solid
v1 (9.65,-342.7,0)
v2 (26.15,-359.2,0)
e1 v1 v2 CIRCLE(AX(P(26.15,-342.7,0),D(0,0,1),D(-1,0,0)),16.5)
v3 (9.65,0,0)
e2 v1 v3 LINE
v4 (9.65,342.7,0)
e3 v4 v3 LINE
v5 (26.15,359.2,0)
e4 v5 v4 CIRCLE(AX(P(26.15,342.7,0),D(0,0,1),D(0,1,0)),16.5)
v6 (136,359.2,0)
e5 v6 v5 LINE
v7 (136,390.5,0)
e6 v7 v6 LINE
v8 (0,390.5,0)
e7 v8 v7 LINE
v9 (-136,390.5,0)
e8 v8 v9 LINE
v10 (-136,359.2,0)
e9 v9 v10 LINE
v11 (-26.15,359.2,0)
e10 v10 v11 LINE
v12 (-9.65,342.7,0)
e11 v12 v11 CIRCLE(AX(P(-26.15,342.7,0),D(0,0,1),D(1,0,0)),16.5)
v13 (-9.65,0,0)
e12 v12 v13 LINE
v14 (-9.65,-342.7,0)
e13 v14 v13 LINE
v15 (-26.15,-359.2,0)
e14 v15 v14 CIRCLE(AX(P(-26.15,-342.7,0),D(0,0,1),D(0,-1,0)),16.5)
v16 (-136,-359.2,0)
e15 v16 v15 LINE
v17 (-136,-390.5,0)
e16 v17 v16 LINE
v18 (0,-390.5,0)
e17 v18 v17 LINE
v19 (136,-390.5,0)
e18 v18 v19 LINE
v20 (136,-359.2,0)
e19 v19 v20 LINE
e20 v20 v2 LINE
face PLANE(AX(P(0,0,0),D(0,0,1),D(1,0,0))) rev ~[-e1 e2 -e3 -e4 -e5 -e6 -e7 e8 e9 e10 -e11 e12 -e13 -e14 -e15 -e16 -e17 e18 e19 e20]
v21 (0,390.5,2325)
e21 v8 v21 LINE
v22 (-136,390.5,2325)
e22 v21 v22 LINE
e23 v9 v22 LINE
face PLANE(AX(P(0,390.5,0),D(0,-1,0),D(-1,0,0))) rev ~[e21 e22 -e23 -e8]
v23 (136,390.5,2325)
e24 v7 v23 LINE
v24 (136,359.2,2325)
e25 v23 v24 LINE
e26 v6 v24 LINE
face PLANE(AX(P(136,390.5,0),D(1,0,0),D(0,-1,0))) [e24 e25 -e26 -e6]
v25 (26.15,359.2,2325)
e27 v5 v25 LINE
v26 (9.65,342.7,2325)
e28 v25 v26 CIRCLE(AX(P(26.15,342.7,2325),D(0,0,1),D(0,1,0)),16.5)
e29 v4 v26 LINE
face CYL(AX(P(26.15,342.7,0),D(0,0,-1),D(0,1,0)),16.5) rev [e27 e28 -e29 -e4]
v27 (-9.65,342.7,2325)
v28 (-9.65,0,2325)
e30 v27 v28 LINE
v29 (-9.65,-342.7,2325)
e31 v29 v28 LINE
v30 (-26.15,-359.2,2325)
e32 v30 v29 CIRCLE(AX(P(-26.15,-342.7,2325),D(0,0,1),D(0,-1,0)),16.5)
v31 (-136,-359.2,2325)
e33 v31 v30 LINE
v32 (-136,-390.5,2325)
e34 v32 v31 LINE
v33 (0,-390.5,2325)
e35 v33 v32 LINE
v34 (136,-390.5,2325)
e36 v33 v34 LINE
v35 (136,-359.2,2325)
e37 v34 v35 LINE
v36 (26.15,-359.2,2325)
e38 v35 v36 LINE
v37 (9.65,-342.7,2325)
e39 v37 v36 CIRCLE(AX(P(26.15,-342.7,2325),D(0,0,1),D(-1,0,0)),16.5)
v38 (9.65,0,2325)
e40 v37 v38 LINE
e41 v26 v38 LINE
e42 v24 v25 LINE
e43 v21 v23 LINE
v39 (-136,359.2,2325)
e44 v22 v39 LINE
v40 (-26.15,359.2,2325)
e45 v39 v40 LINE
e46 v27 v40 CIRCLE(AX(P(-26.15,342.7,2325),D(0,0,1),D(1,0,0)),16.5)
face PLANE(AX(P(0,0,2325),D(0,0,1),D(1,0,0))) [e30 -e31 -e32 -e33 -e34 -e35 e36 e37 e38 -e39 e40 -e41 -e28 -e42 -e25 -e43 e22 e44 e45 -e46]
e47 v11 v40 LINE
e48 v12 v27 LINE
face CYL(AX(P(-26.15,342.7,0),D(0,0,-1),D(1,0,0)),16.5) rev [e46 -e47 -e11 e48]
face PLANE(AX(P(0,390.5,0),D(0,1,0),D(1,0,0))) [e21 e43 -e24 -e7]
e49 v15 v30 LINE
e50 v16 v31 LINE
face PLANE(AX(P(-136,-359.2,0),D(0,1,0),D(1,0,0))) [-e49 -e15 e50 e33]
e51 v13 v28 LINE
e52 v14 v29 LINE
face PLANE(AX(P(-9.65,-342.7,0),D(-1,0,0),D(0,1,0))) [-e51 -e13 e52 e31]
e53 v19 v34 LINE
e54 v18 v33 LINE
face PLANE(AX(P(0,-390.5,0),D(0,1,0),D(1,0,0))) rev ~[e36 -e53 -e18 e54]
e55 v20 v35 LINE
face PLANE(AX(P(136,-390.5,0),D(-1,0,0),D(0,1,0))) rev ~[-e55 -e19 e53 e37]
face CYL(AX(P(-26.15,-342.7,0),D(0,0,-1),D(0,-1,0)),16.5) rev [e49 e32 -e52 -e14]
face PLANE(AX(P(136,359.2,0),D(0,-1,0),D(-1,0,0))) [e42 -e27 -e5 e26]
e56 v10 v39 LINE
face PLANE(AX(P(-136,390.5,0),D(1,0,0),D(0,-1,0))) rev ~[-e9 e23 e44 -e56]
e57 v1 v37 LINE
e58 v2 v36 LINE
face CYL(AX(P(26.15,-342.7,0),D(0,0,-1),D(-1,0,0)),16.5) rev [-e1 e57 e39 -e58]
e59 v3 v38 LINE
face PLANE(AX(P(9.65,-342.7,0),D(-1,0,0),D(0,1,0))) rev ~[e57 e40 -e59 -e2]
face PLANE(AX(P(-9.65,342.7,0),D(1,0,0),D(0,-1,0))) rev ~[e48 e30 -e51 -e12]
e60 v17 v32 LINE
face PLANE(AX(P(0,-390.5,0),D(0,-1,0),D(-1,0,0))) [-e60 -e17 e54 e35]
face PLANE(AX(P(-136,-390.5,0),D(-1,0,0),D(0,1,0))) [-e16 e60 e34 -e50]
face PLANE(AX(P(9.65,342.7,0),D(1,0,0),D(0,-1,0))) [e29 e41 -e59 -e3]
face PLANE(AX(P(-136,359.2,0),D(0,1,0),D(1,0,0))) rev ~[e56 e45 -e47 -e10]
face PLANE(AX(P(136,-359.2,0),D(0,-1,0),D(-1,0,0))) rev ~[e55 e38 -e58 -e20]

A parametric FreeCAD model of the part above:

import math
import FreeCAD as App
import Part
import Sketcher
Q = App.Units.Quantity

doc = App.newDocument("Part")
params = doc.addObject("Spreadsheet::Sheet", "Params")
for row, (alias, value) in enumerate([
    ("sketch1_radius", "16.5 mm"),
    ("sketch1_height", "31.3 mm"),
    ("pad1_length", "2325 mm"),
], start=1):
    params.set(f"A{row}", alias)
    params.set(f"B{row}", "=" + value)
    params.setAlias(f"B{row}", alias)

body = doc.addObject("PartDesign::Body", "Body")

sketch1 = doc.addObject("Sketcher::SketchObject", "Sketch")
body.addObject(sketch1)
sketch1.AttachmentSupport = (doc.XY_Plane, [""])
sketch1.MapMode = "FlatFace"
sketch1.addGeometry(Part.LineSegment(App.Vector(-136, -359, 0), App.Vector(-136, -390, 0)), False)
sketch1.addGeometry(Part.LineSegment(App.Vector(-136, -390, 0), App.Vector(136, -390, 0)), False)
sketch1.addGeometry(Part.LineSegment(App.Vector(136, -390, 0), App.Vector(136, -359, 0)), False)
sketch1.addGeometry(Part.LineSegment(App.Vector(136, -359, 0), App.Vector(26, -359, 0)), False)
sketch1.addGeometry(Part.ArcOfCircle(Part.Circle(App.Vector(26, -343, 0), App.Vector(0, 0, 1), 16), math.radians(180), math.radians(270)), False)
sketch1.addGeometry(Part.LineSegment(App.Vector(10, -343, 0), App.Vector(10, 343, 0)), False)
sketch1.addGeometry(Part.ArcOfCircle(Part.Circle(App.Vector(26, 343, 0), App.Vector(0, 0, 1), 16), math.radians(90), math.radians(180)), False)
sketch1.addGeometry(Part.LineSegment(App.Vector(26, 359, 0), App.Vector(136, 359, 0)), False)
sketch1.addGeometry(Part.LineSegment(App.Vector(136, 359, 0), App.Vector(136, 390, 0)), False)
sketch1.addGeometry(Part.LineSegment(App.Vector(136, 390, 0), App.Vector(-136, 390, 0)), False)
sketch1.addGeometry(Part.LineSegment(App.Vector(-136, 390, 0), App.Vector(-136, 359, 0)), False)
sketch1.addGeometry(Part.LineSegment(App.Vector(-136, 359, 0), App.Vector(-26, 359, 0)), False)
sketch1.addGeometry(Part.ArcOfCircle(Part.Circle(App.Vector(-26, 343, 0), App.Vector(0, 0, 1), 16), math.radians(0), math.radians(90)), False)
sketch1.addGeometry(Part.LineSegment(App.Vector(-10, 343, 0), App.Vector(-10, -343, 0)), False)
sketch1.addGeometry(Part.ArcOfCircle(Part.Circle(App.Vector(-26, -343, 0), App.Vector(0, 0, 1), 16), math.radians(-90), math.radians(0)), False)
sketch1.addGeometry(Part.LineSegment(App.Vector(-26, -359, 0), App.Vector(-136, -359, 0)), False)
sketch1.addConstraint(Sketcher.Constraint("Coincident", 0, 2, 1, 1))
sketch1.addConstraint(Sketcher.Constraint("Coincident", 1, 2, 2, 1))
sketch1.addConstraint(Sketcher.Constraint("Coincident", 2, 2, 3, 1))
sketch1.addConstraint(Sketcher.Constraint("Tangent", 3, 2, 4, 2))
sketch1.addConstraint(Sketcher.Constraint("Tangent", 4, 1, 5, 1))
sketch1.addConstraint(Sketcher.Constraint("Tangent", 5, 2, 6, 2))
sketch1.addConstraint(Sketcher.Constraint("Tangent", 6, 1, 7, 1))
sketch1.addConstraint(Sketcher.Constraint("Coincident", 7, 2, 8, 1))
sketch1.addConstraint(Sketcher.Constraint("Coincident", 8, 2, 9, 1))
sketch1.addConstraint(Sketcher.Constraint("Coincident", 9, 2, 10, 1))
sketch1.addConstraint(Sketcher.Constraint("Coincident", 10, 2, 11, 1))
sketch1.addConstraint(Sketcher.Constraint("Tangent", 11, 2, 12, 2))
sketch1.addConstraint(Sketcher.Constraint("Tangent", 12, 1, 13, 1))
sketch1.addConstraint(Sketcher.Constraint("Tangent", 13, 2, 14, 2))
sketch1.addConstraint(Sketcher.Constraint("Tangent", 14, 1, 15, 1))
sketch1.addConstraint(Sketcher.Constraint("Coincident", 15, 2, 0, 1))
sketch1.addConstraint(Sketcher.Constraint("Vertical", 0))
sketch1.addConstraint(Sketcher.Constraint("Horizontal", 1))
sketch1.addConstraint(Sketcher.Constraint("Vertical", 2))
sketch1.addConstraint(Sketcher.Constraint("Horizontal", 3))
sketch1.addConstraint(Sketcher.Constraint("Vertical", 5))
sketch1.addConstraint(Sketcher.Constraint("Horizontal", 7))
sketch1.addConstraint(Sketcher.Constraint("Vertical", 8))
sketch1.addConstraint(Sketcher.Constraint("Horizontal", 9))
sketch1.addConstraint(Sketcher.Constraint("Vertical", 10))
sketch1.addConstraint(Sketcher.Constraint("Horizontal", 11))
sketch1.addConstraint(Sketcher.Constraint("Vertical", 13))
sketch1.addConstraint(Sketcher.Constraint("Horizontal", 15))
sketch1.addConstraint(Sketcher.Constraint("Equal", 4, 6))
sketch1.addConstraint(Sketcher.Constraint("Equal", 6, 12))
sketch1.addConstraint(Sketcher.Constraint("Equal", 12, 14))
sketch1.addConstraint(Sketcher.Constraint("Symmetric", 4, 3, 12, 3, -1, 1))
sketch1.addConstraint(Sketcher.Constraint("Symmetric", 0, 2, 8, 2, -1, 1))
sketch1.addConstraint(Sketcher.Constraint("Symmetric", 7, 2, 10, 2, -2))
sketch1.addConstraint(Sketcher.Constraint("Symmetric", 2, 2, 15, 2, -2))
sketch1.addConstraint(Sketcher.Constraint("Radius", 4, Q("16.5 mm")))
sketch1.addConstraint(Sketcher.Constraint("DistanceY", 0, 2, 0, 1, Q("31.3 mm")))
sketch1.addConstraint(Sketcher.Constraint("DistanceX", 0, 2, -1, 1, Q("136 mm")))
sketch1.addConstraint(Sketcher.Constraint("DistanceY", 0, 2, -1, 1, Q("390.5 mm")))
sketch1.addConstraint(Sketcher.Constraint("DistanceX", -1, 1, 4, 1, Q("9.65 mm")))
sketch1.setExpression("Constraints[35]", "Params.sketch1_radius")
sketch1.setExpression("Constraints[36]", "Params.sketch1_height")
pad1 = doc.addObject("PartDesign::Pad", "Pad")
body.addObject(pad1)
pad1.Profile = sketch1
pad1.setExpression("Length", "Params.pad1_length")

doc.recompute()
